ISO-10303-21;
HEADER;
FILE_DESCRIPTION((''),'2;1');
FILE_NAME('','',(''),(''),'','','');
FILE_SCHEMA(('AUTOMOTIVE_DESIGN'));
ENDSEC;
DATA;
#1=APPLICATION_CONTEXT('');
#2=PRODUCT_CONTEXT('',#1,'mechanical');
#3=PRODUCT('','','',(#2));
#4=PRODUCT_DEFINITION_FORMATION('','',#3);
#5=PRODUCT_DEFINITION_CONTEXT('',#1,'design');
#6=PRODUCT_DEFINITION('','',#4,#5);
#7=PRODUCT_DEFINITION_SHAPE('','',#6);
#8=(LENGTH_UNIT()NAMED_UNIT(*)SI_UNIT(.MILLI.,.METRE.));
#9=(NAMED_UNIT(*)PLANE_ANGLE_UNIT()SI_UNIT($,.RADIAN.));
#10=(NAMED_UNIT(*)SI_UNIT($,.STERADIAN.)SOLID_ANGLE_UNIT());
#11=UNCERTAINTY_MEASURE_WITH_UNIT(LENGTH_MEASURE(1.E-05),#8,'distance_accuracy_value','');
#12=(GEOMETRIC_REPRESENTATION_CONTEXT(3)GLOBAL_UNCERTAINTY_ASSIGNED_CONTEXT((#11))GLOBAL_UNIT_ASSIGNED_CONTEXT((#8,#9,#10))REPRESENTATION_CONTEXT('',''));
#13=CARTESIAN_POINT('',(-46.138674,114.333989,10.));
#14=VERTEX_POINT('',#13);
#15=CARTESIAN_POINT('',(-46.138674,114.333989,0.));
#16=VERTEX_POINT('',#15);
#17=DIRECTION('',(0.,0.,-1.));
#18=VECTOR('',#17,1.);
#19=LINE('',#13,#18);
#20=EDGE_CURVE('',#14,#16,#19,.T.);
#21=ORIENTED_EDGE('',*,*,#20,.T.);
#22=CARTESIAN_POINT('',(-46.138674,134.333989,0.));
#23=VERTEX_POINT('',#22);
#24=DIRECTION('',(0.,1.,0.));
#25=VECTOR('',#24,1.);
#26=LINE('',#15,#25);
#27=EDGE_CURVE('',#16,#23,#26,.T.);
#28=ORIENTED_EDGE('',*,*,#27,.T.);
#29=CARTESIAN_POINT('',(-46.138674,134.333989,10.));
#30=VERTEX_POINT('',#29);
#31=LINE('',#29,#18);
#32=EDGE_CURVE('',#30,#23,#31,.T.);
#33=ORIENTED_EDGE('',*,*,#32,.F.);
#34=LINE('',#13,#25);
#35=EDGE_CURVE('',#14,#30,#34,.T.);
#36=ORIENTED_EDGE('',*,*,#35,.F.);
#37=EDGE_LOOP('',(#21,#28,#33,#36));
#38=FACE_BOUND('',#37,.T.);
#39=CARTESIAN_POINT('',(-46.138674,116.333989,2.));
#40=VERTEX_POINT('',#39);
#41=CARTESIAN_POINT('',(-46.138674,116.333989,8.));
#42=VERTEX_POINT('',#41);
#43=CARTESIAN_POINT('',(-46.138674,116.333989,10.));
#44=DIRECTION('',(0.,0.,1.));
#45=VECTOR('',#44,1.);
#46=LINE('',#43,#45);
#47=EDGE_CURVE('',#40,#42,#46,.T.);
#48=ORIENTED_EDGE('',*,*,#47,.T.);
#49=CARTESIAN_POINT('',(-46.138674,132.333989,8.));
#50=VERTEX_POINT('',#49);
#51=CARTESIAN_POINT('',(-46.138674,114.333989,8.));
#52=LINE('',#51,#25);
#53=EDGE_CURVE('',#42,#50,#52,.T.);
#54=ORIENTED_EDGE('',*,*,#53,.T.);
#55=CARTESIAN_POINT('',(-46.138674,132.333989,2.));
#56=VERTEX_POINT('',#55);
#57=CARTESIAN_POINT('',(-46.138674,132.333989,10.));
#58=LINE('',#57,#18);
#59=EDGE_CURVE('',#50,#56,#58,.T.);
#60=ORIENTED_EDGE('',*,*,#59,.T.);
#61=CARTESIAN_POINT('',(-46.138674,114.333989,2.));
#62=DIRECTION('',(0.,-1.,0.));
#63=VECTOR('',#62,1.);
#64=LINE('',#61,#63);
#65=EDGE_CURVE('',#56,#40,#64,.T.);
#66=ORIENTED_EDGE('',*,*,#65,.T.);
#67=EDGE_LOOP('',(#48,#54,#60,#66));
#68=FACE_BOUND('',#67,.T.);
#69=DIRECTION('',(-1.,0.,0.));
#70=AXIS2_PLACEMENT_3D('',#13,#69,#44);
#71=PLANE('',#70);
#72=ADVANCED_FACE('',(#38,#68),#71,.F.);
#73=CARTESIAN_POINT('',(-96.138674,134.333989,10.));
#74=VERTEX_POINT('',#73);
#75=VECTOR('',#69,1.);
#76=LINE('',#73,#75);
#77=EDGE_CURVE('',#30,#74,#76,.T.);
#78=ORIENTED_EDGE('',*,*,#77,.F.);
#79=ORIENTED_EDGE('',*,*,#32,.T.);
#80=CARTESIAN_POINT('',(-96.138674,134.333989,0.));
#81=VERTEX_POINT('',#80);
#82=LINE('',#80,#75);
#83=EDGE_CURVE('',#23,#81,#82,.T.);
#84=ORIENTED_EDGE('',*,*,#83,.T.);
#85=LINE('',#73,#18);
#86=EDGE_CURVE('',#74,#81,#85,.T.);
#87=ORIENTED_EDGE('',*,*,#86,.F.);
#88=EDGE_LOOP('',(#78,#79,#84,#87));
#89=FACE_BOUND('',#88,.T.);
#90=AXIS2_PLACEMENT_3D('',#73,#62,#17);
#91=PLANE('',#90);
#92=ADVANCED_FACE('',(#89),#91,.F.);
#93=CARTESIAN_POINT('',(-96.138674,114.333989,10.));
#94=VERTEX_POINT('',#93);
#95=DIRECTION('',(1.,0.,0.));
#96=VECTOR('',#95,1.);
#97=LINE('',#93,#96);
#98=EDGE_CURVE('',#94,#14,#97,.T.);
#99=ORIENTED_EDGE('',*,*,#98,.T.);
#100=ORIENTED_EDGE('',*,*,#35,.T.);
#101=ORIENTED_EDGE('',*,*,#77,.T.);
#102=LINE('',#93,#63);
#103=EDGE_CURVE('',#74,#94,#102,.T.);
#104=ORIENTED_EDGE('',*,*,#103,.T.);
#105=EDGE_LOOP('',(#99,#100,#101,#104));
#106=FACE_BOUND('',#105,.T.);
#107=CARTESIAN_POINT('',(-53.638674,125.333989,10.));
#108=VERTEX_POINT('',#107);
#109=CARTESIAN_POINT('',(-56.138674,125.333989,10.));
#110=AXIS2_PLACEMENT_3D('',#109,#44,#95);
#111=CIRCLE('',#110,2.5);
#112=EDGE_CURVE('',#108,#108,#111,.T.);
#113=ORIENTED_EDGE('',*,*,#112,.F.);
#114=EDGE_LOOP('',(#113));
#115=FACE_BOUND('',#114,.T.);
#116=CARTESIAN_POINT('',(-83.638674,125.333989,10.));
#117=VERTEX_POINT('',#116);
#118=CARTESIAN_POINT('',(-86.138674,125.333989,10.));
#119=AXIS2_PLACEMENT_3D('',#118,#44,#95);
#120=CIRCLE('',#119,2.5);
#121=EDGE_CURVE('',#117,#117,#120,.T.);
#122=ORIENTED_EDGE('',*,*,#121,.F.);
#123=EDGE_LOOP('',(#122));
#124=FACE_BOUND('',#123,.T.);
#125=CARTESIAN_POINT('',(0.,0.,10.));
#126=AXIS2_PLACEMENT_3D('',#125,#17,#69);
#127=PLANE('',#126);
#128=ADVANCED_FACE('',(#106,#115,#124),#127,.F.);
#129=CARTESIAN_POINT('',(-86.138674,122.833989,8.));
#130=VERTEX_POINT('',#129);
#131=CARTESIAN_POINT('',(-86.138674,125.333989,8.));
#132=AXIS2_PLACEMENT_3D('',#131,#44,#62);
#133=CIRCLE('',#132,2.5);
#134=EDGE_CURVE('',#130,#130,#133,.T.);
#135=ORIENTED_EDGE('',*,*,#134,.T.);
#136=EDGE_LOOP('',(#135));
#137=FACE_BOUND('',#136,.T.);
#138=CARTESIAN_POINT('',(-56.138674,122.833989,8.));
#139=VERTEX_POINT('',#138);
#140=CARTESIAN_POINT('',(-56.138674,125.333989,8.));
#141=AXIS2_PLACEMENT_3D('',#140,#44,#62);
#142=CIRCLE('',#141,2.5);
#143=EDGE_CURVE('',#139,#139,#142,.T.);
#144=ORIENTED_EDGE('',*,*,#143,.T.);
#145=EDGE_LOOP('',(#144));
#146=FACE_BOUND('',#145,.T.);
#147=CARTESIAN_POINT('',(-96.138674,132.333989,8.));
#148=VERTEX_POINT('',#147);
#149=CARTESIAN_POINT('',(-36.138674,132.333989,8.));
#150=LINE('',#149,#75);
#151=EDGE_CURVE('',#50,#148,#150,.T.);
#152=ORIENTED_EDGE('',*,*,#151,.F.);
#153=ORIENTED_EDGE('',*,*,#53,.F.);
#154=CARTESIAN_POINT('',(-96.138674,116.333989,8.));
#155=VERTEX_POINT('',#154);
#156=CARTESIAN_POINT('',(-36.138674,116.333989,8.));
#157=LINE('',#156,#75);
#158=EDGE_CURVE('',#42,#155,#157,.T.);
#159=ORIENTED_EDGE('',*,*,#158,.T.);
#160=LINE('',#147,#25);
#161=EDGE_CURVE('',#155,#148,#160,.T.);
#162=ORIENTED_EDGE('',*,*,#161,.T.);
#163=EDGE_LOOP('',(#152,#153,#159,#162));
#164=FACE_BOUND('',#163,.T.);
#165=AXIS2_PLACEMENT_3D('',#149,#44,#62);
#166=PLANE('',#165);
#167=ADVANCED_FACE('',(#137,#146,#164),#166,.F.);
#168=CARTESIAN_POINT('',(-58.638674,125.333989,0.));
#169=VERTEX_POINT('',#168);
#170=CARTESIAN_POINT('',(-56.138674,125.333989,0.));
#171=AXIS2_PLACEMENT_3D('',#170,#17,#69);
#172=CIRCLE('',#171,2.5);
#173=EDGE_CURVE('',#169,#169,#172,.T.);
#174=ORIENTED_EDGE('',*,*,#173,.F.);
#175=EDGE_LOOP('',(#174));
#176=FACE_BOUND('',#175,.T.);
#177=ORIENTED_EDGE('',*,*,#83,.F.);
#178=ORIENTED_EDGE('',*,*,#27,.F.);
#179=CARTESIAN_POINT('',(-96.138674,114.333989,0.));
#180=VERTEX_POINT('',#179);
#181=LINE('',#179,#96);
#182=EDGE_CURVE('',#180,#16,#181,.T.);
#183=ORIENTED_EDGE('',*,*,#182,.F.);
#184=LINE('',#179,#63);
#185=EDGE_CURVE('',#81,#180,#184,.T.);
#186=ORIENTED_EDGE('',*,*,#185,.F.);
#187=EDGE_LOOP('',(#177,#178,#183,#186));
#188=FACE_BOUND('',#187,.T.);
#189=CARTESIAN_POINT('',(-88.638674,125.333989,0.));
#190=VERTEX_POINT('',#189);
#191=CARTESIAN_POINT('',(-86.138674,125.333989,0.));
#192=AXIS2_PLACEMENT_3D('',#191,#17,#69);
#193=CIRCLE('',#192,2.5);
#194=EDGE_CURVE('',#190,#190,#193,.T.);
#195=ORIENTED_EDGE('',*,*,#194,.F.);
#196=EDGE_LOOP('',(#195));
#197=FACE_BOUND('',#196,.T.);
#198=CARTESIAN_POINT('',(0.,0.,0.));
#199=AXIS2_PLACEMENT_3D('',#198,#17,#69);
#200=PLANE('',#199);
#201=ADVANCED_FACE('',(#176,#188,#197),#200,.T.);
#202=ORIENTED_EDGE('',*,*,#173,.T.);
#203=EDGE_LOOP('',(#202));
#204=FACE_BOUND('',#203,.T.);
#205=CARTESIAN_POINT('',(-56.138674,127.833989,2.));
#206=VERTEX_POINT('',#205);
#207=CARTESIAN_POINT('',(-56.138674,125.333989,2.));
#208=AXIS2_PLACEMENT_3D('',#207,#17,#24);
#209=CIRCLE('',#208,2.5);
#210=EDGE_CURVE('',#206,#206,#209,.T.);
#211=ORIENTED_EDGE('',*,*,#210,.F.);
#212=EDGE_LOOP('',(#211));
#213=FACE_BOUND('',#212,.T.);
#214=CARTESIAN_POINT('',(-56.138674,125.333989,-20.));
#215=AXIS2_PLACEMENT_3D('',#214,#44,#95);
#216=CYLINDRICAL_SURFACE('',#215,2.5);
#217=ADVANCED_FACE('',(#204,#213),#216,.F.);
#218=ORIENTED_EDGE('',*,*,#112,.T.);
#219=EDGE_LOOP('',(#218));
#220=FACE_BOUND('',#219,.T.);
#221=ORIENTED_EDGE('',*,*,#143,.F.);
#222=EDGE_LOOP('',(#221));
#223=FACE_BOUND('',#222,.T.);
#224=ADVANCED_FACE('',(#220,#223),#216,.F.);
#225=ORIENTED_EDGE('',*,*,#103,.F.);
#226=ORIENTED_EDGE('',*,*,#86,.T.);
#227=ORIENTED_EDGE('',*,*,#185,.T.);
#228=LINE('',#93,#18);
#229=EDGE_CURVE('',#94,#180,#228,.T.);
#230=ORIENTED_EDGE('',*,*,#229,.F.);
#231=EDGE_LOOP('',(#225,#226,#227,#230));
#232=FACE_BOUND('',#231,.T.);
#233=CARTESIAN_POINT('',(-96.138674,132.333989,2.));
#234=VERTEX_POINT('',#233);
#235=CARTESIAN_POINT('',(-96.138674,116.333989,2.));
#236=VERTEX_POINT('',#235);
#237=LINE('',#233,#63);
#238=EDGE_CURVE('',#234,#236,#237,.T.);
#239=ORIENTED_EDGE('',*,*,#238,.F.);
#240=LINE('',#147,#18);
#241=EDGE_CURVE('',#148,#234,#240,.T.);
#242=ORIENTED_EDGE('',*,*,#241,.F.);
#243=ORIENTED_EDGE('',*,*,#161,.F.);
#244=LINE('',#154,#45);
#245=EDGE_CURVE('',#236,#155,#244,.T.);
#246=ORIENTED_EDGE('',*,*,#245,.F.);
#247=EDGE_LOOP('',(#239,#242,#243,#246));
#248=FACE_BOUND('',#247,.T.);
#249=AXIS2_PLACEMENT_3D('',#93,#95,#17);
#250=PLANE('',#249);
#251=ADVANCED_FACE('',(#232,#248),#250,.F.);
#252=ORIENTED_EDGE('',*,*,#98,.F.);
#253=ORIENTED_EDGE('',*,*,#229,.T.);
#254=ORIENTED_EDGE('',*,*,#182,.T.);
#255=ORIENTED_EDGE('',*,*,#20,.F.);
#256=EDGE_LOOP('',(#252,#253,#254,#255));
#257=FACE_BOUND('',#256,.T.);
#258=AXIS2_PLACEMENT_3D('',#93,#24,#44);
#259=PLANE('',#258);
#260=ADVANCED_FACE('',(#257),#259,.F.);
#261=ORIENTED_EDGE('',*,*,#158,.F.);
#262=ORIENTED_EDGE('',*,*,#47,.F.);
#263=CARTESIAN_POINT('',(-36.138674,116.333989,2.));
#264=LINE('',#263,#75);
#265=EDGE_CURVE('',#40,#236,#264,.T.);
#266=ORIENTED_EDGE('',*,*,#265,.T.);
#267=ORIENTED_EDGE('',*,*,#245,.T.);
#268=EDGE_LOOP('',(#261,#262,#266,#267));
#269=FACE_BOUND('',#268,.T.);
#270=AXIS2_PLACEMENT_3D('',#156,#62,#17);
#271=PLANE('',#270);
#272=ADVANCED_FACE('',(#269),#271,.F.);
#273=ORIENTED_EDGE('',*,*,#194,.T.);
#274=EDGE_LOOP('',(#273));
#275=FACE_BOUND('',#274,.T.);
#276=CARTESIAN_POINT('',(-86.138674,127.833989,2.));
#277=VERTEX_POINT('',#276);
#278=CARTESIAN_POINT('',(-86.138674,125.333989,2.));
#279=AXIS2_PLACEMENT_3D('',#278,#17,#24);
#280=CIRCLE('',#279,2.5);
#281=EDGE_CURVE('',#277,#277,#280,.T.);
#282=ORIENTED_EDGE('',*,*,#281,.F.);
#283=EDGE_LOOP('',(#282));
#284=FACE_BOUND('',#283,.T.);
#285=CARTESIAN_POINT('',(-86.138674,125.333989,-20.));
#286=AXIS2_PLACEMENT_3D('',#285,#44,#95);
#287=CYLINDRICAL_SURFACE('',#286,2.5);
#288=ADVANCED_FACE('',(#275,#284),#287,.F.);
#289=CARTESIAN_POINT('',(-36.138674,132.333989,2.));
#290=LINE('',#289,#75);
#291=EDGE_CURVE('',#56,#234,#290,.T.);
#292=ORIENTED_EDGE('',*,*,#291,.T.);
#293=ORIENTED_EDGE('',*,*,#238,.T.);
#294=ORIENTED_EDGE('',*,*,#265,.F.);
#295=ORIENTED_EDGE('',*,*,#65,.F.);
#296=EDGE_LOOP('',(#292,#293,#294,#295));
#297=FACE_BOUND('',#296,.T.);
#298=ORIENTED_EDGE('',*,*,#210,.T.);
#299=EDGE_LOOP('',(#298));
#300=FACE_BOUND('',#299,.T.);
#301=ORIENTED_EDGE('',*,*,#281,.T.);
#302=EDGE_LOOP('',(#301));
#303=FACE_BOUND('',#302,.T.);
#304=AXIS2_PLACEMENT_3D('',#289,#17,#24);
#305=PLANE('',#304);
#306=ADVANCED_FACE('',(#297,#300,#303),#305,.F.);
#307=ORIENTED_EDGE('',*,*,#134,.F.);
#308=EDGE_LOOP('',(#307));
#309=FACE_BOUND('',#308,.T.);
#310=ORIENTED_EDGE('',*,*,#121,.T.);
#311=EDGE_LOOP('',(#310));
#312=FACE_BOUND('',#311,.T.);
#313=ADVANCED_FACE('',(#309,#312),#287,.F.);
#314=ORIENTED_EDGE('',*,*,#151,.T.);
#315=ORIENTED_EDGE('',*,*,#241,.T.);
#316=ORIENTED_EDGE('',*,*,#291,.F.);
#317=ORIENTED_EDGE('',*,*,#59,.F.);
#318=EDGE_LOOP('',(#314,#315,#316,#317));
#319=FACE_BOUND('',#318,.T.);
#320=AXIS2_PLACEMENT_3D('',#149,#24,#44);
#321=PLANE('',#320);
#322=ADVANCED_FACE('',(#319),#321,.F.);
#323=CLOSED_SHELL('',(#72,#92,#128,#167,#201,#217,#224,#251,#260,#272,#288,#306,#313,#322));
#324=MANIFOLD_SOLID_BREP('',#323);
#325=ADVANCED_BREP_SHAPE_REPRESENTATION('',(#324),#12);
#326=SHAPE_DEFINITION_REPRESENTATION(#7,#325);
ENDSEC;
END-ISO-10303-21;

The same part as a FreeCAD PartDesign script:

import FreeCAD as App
import Part
import Sketcher
from FreeCAD import Vector

doc = App.newDocument("Part")
body = doc.addObject("PartDesign::Body", "Body")

sketch1 = doc.addObject("Sketcher::SketchObject", "Sketch")
body.addObject(sketch1)
sketch1.AttachmentSupport = (doc.XY_Plane, [""])
sketch1.MapMode = "FlatFace"
sketch1.addGeometry(Part.LineSegment(Vector(-96, 134, 0), Vector(-96, 114, 0)), False)
sketch1.addGeometry(Part.LineSegment(Vector(-96, 114, 0), Vector(-46, 114, 0)), False)
sketch1.addGeometry(Part.LineSegment(Vector(-46, 114, 0), Vector(-46, 134, 0)), False)
sketch1.addGeometry(Part.LineSegment(Vector(-46, 134, 0), Vector(-96, 134, 0)), False)
sketch1.addConstraint(Sketcher.Constraint("Coincident", 0, 2, 1, 1))
sketch1.addConstraint(Sketcher.Constraint("Coincident", 1, 2, 2, 1))
sketch1.addConstraint(Sketcher.Constraint("Coincident", 2, 2, 3, 1))
sketch1.addConstraint(Sketcher.Constraint("Coincident", 3, 2, 0, 1))
sketch1.addConstraint(Sketcher.Constraint("Vertical", 0))
sketch1.addConstraint(Sketcher.Constraint("Horizontal", 1))
sketch1.addConstraint(Sketcher.Constraint("Vertical", 2))
sketch1.addConstraint(Sketcher.Constraint("Horizontal", 3))
sketch1.addConstraint(Sketcher.Constraint("DistanceX", 1, 1, 1, 2, 50.0))
sketch1.addConstraint(Sketcher.Constraint("DistanceY", 0, 2, 0, 1, 20.0))
sketch1.addConstraint(Sketcher.Constraint("DistanceY", -1, 1, 0, 2, 114.333989))
sketch1.addConstraint(Sketcher.Constraint("DistanceX", 0, 2, -1, 1, 96.138674))
pad1 = doc.addObject("PartDesign::Pad", "Pad")
body.addObject(pad1)
pad1.Profile = sketch1
pad1.Length = 10

sketch2 = doc.addObject("Sketcher::SketchObject", "Sketch001")
body.addObject(sketch2)
sketch2.AttachmentSupport = (doc.YZ_Plane, [""])
sketch2.MapMode = "FlatFace"
sketch2.AttachmentOffset = App.Placement(Vector(0, 0, -96.138674), App.Rotation())
sketch2.addGeometry(Part.LineSegment(Vector(132, 2, 0), Vector(116, 2, 0)), False)
sketch2.addGeometry(Part.LineSegment(Vector(116, 2, 0), Vector(116, 8, 0)), False)
sketch2.addGeometry(Part.LineSegment(Vector(116, 8, 0), Vector(132, 8, 0)), False)
sketch2.addGeometry(Part.LineSegment(Vector(132, 8, 0), Vector(132, 2, 0)), False)
sketch2.addConstraint(Sketcher.Constraint("Coincident", 0, 2, 1, 1))
sketch2.addConstraint(Sketcher.Constraint("Coincident", 1, 2, 2, 1))
sketch2.addConstraint(Sketcher.Constraint("Coincident", 2, 2, 3, 1))
sketch2.addConstraint(Sketcher.Constraint("Coincident", 3, 2, 0, 1))
sketch2.addConstraint(Sketcher.Constraint("Horizontal", 0))
sketch2.addConstraint(Sketcher.Constraint("Vertical", 1))
sketch2.addConstraint(Sketcher.Constraint("Horizontal", 2))
sketch2.addConstraint(Sketcher.Constraint("Vertical", 3))
sketch2.addConstraint(Sketcher.Constraint("DistanceX", 0, 2, 0, 1, 16.0))
sketch2.addConstraint(Sketcher.Constraint("DistanceY", 1, 1, 1, 2, 6.0))
sketch2.addConstraint(Sketcher.Constraint("DistanceY", -1, 1, 0, 2, 2.0))
sketch2.addConstraint(Sketcher.Constraint("DistanceX", -1, 1, 0, 2, 116.333989))
pocket1 = doc.addObject("PartDesign::Pocket", "Pocket")
body.addObject(pocket1)
pocket1.Profile = sketch2
pocket1.Length = 60
pocket1.Reversed = True

sketch3 = doc.addObject("Sketcher::SketchObject", "Sketch002")
body.addObject(sketch3)
sketch3.AttachmentSupport = (doc.XY_Plane, [""])
sketch3.MapMode = "FlatFace"
sketch3.AttachmentOffset = App.Placement(Vector(0, 0, 10), App.Rotation())
sketch3.addGeometry(Part.Circle(Vector(-56.1, 125.3, 0), Vector(0, 0, 1), 2.5), False)
sketch3.addGeometry(Part.Circle(Vector(-86.1, 125.3, 0), Vector(0, 0, 1), 2.5), False)
sketch3.addConstraint(Sketcher.Constraint("Equal", 0, 1))
sketch3.addConstraint(Sketcher.Constraint("Horizontal", 0, 3, 1, 3))
sketch3.addConstraint(Sketcher.Constraint("Diameter", 0, 5.0))
sketch3.addConstraint(Sketcher.Constraint("DistanceX", 1, 3, 0, 3, 30.0))
sketch3.addConstraint(Sketcher.Constraint("DistanceY", -1, 1, 0, 3, 125.333989))
sketch3.addConstraint(Sketcher.Constraint("DistanceX", 0, 3, -1, 1, 56.138674))
pocket2 = doc.addObject("PartDesign::Pocket", "Pocket001")
body.addObject(pocket2)
pocket2.Profile = sketch3
pocket2.Length = 30

doc.recompute()
